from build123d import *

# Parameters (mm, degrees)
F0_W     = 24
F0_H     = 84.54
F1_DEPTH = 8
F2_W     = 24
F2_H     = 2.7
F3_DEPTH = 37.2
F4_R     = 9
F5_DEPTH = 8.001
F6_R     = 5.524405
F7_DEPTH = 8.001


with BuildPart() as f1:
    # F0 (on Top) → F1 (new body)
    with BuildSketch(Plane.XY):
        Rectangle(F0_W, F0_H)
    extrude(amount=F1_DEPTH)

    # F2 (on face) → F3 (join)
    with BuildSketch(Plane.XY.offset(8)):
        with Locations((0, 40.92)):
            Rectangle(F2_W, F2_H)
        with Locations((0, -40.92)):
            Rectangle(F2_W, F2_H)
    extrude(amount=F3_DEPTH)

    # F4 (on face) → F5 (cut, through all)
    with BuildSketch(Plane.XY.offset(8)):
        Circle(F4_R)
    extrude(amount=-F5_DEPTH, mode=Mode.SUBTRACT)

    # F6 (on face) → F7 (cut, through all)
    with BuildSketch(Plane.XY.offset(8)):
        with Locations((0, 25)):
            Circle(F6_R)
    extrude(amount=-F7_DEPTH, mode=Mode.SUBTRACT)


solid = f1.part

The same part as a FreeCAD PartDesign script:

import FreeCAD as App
import Part
import Sketcher

V = App.Vector

doc = App.newDocument("Part")
params = doc.addObject("Spreadsheet::Sheet", "Params")
for row, (alias, value) in enumerate([
    ("sketch1_width", "24 mm"),
    ("sketch1_height", "84.54 mm"),
    ("pad1_length", "8 mm"),
    ("sketch2_width", "24 mm"),
    ("sketch2_height", "2.7 mm"),
    ("pad2_length", "37.2 mm"),
    ("sketch3_diameter", "18 mm"),
], start=1):
    params.set(f"A{row}", alias)
    params.set(f"B{row}", "=" + value)
    params.setAlias(f"B{row}", alias)

body = doc.addObject("PartDesign::Body", "Body")

# Sketch on XY plane
sketch1 = body.newObject("Sketcher::SketchObject", "Sketch")
sketch1.AttachmentSupport = (doc.getObject("XY_Plane"), [""])
sketch1.MapMode = "FlatFace"
sketch1.addGeometry([
    Part.LineSegment(V(-12, 42, 0), V(-12, -42, 0)),
    Part.LineSegment(V(-12, -42, 0), V(12, -42, 0)),
    Part.LineSegment(V(12, -42, 0), V(12, 42, 0)),
    Part.LineSegment(V(12, 42, 0), V(-12, 42, 0)),
], False)
sketch1.addConstraint([
    Sketcher.Constraint("Coincident", 0, 2, 1, 1),
    Sketcher.Constraint("Coincident", 1, 2, 2, 1),
    Sketcher.Constraint("Coincident", 2, 2, 3, 1),
    Sketcher.Constraint("Coincident", 3, 2, 0, 1),
    Sketcher.Constraint("Vertical", 0),
    Sketcher.Constraint("Horizontal", 1),
    Sketcher.Constraint("Vertical", 2),
    Sketcher.Constraint("Horizontal", 3),
    Sketcher.Constraint("Symmetric", 0, 2, 2, 2, -1, 1),
    Sketcher.Constraint("DistanceX", 1, 1, 1, 2, 24.0),
    Sketcher.Constraint("DistanceY", 0, 2, 0, 1, 84.54),
])
sketch1.setExpression("Constraints[9]", "Params.sketch1_width")
sketch1.setExpression("Constraints[10]", "Params.sketch1_height")
pad1 = body.newObject("PartDesign::Pad", "Pad")
pad1.Profile = sketch1
pad1.setExpression("Length", "Params.pad1_length")

# Sketch on XY plane
sketch2 = body.newObject("Sketcher::SketchObject", "Sketch001")
sketch2.AttachmentSupport = (doc.getObject("XY_Plane"), [""])
sketch2.MapMode = "FlatFace"
sketch2.AttachmentOffset = App.Placement(V(0, 0, 8), App.Rotation())
sketch2.addGeometry([
    Part.LineSegment(V(-12, 42.3, 0), V(-12, 39.6, 0)),  # 0
    Part.LineSegment(V(-12, 39.6, 0), V(12, 39.6, 0)),  # 1
    Part.LineSegment(V(12, 39.6, 0), V(12, 42.3, 0)),  # 2
    Part.LineSegment(V(12, 42.3, 0), V(-12, 42.3, 0)),  # 3
    Part.LineSegment(V(-12, -39.6, 0), V(-12, -42.3, 0)),  # 4
    Part.LineSegment(V(-12, -42.3, 0), V(12, -42.3, 0)),  # 5
    Part.LineSegment(V(12, -42.3, 0), V(12, -39.6, 0)),  # 6
    Part.LineSegment(V(12, -39.6, 0), V(-12, -39.6, 0)),  # 7
], False)
sketch2.addConstraint([
    Sketcher.Constraint("Coincident", 0, 2, 1, 1),
    Sketcher.Constraint("Coincident", 1, 2, 2, 1),
    Sketcher.Constraint("Coincident", 2, 2, 3, 1),
    Sketcher.Constraint("Coincident", 3, 2, 0, 1),
    Sketcher.Constraint("Coincident", 4, 2, 5, 1),
    Sketcher.Constraint("Coincident", 5, 2, 6, 1),
    Sketcher.Constraint("Coincident", 6, 2, 7, 1),
    Sketcher.Constraint("Coincident", 7, 2, 4, 1),
    Sketcher.Constraint("Vertical", 0),
    Sketcher.Constraint("Horizontal", 1),
    Sketcher.Constraint("Vertical", 2),
    Sketcher.Constraint("Horizontal", 3),
    Sketcher.Constraint("Vertical", 4),
    Sketcher.Constraint("Horizontal", 5),
    Sketcher.Constraint("Vertical", 6),
    Sketcher.Constraint("Horizontal", 7),
    Sketcher.Constraint("Symmetric", 2, 2, 4, 2, -1, 1),
    Sketcher.Constraint("Symmetric", 0, 2, 6, 2, -1, 1),
    Sketcher.Constraint("Vertical", 3, 2, 4, 2),
    Sketcher.Constraint("DistanceX", 1, 1, 1, 2, 24.0),
    Sketcher.Constraint("DistanceY", 0, 2, 0, 1, 2.7),
    Sketcher.Constraint("DistanceY", -1, 1, 0, 2, 39.57),
])
sketch2.setExpression("Constraints[19]", "Params.sketch2_width")
sketch2.setExpression("Constraints[20]", "Params.sketch2_height")
pad2 = body.newObject("PartDesign::Pad", "Pad001")
pad2.Profile = sketch2
pad2.setExpression("Length", "Params.pad2_length")

# Sketch on XY plane
sketch3 = body.newObject("Sketcher::SketchObject", "Sketch002")
sketch3.AttachmentSupport = (doc.getObject("XY_Plane"), [""])
sketch3.MapMode = "FlatFace"
sketch3.AttachmentOffset = App.Placement(V(0, 0, 8), App.Rotation())
sketch3.addGeometry(Part.Circle(V(0, 0, 0), V(0, 0, 1), 9), False)
sketch3.addConstraint([
    Sketcher.Constraint("Coincident", 0, 3, -1, 1),
    Sketcher.Constraint("Diameter", 0, 18.0),
])
sketch3.setExpression("Constraints[1]", "Params.sketch3_diameter")
pocket1 = body.newObject("PartDesign::Pocket", "Pocket")
pocket1.Profile = sketch3
pocket1.Type = "ThroughAll"

# Sketch on XY plane
sketch4 = body.newObject("Sketcher::SketchObject", "Sketch003")
sketch4.AttachmentSupport = (doc.getObject("XY_Plane"), [""])
sketch4.MapMode = "FlatFace"
sketch4.AttachmentOffset = App.Placement(V(0, 0, 8), App.Rotation())
sketch4.addGeometry(Part.Circle(V(0, 25, 0), V(0, 0, 1), 6), False)
sketch4.addConstraint([
    Sketcher.Constraint("PointOnObject", 0, 3, -2),
    Sketcher.Constraint("DistanceY", -1, 1, 0, 3, 25.0),
    Sketcher.Constraint("Diameter", 0, 11.04881),
])
pocket2 = body.newObject("PartDesign::Pocket", "Pocket001")
pocket2.Profile = sketch4
pocket2.Type = "ThroughAll"

doc.recompute()
